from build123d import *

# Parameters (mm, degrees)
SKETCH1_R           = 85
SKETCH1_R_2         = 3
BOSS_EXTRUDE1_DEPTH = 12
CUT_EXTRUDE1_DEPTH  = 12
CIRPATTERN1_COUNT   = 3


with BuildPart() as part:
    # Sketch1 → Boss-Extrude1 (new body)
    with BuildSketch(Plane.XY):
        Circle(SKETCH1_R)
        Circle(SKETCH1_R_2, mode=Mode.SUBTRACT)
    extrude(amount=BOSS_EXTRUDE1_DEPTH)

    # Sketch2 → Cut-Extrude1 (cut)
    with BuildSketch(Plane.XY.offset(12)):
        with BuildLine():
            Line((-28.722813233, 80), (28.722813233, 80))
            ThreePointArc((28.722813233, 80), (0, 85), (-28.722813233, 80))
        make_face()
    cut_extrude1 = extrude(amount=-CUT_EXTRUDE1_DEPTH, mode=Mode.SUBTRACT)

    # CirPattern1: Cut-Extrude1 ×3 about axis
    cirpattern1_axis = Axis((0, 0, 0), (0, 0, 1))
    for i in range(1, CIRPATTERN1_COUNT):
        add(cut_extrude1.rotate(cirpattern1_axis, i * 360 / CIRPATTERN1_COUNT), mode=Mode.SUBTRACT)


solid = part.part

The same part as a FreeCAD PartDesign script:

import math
import FreeCAD as App
import Part
import Sketcher
Q = App.Units.Quantity

doc = App.newDocument("Part")
body = doc.addObject("PartDesign::Body", "Body")

sketch1 = doc.addObject("Sketcher::SketchObject", "Sketch")
body.addObject(sketch1)
sketch1.AttachmentSupport = (doc.XY_Plane, [""])
sketch1.MapMode = "FlatFace"
sketch1.addGeometry(Part.Circle(App.Vector(0, 0, 0), App.Vector(0, 0, 1), 85), False)
sketch1.addGeometry(Part.Circle(App.Vector(0, 0, 0), App.Vector(0, 0, 1), 3), False)
sketch1.addConstraint(Sketcher.Constraint("Coincident", 0, 3, -1, 1))
sketch1.addConstraint(Sketcher.Constraint("Coincident", 1, 3, -1, 1))
sketch1.addConstraint(Sketcher.Constraint("Diameter", 0, Q("170 mm")))
sketch1.addConstraint(Sketcher.Constraint("Diameter", 1, Q("6 mm")))
pad1 = doc.addObject("PartDesign::Pad", "Pad")
body.addObject(pad1)
pad1.Profile = sketch1
pad1.Length = 12

sketch2 = doc.addObject("Sketcher::SketchObject", "Sketch001")
body.addObject(sketch2)
sketch2.AttachmentSupport = (doc.XY_Plane, [""])
sketch2.MapMode = "FlatFace"
sketch2.AttachmentOffset = App.Placement(App.Vector(0, 0, 12), App.Rotation())
sketch2.addGeometry(Part.LineSegment(App.Vector(-29, 80, 0), App.Vector(29, 80, 0)), False)
sketch2.addGeometry(Part.ArcOfCircle(Part.Circle(App.Vector(0, 0, 0), App.Vector(0, 0, 1), 85), math.radians(70), math.radians(110)), False)
sketch2.addConstraint(Sketcher.Constraint("Coincident", 0, 1, 1, 2))
sketch2.addConstraint(Sketcher.Constraint("Coincident", 1, 1, 0, 2))
sketch2.addConstraint(Sketcher.Constraint("Horizontal", 0))
sketch2.addConstraint(Sketcher.Constraint("Coincident", 1, 3, -1, 1))
sketch2.addConstraint(Sketcher.Constraint("Radius", 1, Q("85 mm")))
sketch2.addConstraint(Sketcher.Constraint("DistanceY", -1, 1, 0, 1, Q("80 mm")))
pocket1 = doc.addObject("PartDesign::Pocket", "Pocket")
body.addObject(pocket1)
pocket1.Profile = sketch2
pocket1.Length = 12
doc.recompute()

polarpattern = doc.addObject("PartDesign::PolarPattern", "PolarPattern")
body.addObject(polarpattern)
polarpattern.Originals = [pocket1]
polarpattern.Axis = (doc.Z_Axis, [""])
polarpattern.Angle = 360
polarpattern.Occurrences = 3
body.Tip = polarpattern

doc.recompute()
